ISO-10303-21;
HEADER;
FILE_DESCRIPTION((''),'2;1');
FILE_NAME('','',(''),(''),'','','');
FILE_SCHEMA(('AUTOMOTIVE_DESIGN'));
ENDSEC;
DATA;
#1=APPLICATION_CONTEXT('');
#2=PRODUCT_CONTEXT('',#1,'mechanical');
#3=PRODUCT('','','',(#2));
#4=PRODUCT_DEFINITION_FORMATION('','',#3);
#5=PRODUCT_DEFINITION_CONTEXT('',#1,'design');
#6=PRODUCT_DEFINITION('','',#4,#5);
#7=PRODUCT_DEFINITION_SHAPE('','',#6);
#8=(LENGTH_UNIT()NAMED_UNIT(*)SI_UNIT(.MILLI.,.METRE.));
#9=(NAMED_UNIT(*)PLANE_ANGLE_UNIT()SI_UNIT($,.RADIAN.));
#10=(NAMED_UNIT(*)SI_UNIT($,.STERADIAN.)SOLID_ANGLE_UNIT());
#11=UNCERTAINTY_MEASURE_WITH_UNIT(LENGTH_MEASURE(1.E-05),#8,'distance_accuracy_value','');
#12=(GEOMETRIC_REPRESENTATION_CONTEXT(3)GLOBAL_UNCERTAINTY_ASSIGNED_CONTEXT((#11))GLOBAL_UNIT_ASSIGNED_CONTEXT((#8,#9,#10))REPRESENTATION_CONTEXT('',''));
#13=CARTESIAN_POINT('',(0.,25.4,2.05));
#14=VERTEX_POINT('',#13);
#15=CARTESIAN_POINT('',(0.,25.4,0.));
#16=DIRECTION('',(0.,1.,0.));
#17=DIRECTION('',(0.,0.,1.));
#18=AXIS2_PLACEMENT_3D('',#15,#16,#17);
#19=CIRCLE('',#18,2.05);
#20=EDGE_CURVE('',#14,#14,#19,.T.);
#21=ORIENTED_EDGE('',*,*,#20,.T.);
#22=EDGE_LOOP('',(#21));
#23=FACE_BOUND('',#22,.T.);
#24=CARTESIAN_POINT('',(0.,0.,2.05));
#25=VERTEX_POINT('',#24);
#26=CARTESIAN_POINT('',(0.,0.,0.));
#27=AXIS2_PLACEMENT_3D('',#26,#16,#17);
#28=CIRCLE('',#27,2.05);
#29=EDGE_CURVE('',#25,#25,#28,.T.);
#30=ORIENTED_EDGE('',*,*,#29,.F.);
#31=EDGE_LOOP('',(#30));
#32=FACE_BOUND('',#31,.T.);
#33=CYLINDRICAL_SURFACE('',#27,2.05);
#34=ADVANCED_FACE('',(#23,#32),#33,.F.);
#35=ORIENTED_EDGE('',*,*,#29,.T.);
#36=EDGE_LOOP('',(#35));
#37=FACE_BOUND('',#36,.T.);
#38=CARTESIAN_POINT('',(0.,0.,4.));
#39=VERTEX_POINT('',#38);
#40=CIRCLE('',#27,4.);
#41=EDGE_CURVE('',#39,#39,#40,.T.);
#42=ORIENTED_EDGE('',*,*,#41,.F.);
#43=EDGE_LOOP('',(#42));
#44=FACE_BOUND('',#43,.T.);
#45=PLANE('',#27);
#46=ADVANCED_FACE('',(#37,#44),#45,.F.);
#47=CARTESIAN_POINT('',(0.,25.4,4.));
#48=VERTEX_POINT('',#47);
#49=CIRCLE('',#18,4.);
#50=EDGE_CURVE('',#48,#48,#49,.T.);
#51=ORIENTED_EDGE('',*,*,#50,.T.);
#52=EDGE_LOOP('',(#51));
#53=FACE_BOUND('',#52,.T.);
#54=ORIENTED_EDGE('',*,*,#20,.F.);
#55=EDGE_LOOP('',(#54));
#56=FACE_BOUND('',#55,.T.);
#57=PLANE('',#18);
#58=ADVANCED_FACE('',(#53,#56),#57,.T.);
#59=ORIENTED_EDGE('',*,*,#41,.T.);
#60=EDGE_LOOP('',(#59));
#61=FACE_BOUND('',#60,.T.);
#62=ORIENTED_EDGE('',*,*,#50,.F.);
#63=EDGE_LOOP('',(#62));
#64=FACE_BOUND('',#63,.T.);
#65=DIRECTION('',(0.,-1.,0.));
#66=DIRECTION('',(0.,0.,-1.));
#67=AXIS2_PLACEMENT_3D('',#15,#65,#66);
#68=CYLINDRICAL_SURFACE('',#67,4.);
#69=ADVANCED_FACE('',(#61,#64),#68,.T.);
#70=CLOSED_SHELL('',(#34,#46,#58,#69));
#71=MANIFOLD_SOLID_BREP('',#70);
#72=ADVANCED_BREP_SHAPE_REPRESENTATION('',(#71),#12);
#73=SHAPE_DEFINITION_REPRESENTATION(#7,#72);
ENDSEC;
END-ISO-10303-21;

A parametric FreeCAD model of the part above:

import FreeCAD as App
import Part
import Sketcher
from FreeCAD import Vector
Q = App.Units.Quantity

doc = App.newDocument("Part")
body = doc.addObject("PartDesign::Body", "Body")

# Sketch on XZ plane
sketch1 = doc.addObject("Sketcher::SketchObject", "Sketch")
body.addObject(sketch1)
sketch1.AttachmentSupport = (doc.XZ_Plane, [""])
sketch1.MapMode = "FlatFace"
sketch1.addGeometry(Part.Circle(Vector(0, 0, 0), Vector(0, 0, 1), 4), False)
sketch1.addConstraint(Sketcher.Constraint("Coincident", 0, 3, -1, 1))
sketch1.addConstraint(Sketcher.Constraint("Diameter", 0, Q("8 mm")))
pad1 = doc.addObject("PartDesign::Pad", "Pad")
body.addObject(pad1)
pad1.Profile = sketch1
pad1.Length = 25.4
pad1.Reversed = True

# Sketch on XZ plane
sketch2 = doc.addObject("Sketcher::SketchObject", "Sketch001")
body.addObject(sketch2)
sketch2.AttachmentSupport = (doc.XZ_Plane, [""])
sketch2.MapMode = "FlatFace"
sketch2.AttachmentOffset = App.Placement(Vector(0, 0, -25.4), App.Rotation())
sketch2.addGeometry(Part.Circle(Vector(0, 0, 0), Vector(0, 0, 1), 2), False)
sketch2.addConstraint(Sketcher.Constraint("Coincident", 0, 3, -1, 1))
sketch2.addConstraint(Sketcher.Constraint("Diameter", 0, Q("4.1 mm")))
pocket1 = doc.addObject("PartDesign::Pocket", "Pocket")
body.addObject(pocket1)
pocket1.Profile = sketch2
pocket1.Type = "ThroughAll"
pocket1.Reversed = True

doc.recompute()
